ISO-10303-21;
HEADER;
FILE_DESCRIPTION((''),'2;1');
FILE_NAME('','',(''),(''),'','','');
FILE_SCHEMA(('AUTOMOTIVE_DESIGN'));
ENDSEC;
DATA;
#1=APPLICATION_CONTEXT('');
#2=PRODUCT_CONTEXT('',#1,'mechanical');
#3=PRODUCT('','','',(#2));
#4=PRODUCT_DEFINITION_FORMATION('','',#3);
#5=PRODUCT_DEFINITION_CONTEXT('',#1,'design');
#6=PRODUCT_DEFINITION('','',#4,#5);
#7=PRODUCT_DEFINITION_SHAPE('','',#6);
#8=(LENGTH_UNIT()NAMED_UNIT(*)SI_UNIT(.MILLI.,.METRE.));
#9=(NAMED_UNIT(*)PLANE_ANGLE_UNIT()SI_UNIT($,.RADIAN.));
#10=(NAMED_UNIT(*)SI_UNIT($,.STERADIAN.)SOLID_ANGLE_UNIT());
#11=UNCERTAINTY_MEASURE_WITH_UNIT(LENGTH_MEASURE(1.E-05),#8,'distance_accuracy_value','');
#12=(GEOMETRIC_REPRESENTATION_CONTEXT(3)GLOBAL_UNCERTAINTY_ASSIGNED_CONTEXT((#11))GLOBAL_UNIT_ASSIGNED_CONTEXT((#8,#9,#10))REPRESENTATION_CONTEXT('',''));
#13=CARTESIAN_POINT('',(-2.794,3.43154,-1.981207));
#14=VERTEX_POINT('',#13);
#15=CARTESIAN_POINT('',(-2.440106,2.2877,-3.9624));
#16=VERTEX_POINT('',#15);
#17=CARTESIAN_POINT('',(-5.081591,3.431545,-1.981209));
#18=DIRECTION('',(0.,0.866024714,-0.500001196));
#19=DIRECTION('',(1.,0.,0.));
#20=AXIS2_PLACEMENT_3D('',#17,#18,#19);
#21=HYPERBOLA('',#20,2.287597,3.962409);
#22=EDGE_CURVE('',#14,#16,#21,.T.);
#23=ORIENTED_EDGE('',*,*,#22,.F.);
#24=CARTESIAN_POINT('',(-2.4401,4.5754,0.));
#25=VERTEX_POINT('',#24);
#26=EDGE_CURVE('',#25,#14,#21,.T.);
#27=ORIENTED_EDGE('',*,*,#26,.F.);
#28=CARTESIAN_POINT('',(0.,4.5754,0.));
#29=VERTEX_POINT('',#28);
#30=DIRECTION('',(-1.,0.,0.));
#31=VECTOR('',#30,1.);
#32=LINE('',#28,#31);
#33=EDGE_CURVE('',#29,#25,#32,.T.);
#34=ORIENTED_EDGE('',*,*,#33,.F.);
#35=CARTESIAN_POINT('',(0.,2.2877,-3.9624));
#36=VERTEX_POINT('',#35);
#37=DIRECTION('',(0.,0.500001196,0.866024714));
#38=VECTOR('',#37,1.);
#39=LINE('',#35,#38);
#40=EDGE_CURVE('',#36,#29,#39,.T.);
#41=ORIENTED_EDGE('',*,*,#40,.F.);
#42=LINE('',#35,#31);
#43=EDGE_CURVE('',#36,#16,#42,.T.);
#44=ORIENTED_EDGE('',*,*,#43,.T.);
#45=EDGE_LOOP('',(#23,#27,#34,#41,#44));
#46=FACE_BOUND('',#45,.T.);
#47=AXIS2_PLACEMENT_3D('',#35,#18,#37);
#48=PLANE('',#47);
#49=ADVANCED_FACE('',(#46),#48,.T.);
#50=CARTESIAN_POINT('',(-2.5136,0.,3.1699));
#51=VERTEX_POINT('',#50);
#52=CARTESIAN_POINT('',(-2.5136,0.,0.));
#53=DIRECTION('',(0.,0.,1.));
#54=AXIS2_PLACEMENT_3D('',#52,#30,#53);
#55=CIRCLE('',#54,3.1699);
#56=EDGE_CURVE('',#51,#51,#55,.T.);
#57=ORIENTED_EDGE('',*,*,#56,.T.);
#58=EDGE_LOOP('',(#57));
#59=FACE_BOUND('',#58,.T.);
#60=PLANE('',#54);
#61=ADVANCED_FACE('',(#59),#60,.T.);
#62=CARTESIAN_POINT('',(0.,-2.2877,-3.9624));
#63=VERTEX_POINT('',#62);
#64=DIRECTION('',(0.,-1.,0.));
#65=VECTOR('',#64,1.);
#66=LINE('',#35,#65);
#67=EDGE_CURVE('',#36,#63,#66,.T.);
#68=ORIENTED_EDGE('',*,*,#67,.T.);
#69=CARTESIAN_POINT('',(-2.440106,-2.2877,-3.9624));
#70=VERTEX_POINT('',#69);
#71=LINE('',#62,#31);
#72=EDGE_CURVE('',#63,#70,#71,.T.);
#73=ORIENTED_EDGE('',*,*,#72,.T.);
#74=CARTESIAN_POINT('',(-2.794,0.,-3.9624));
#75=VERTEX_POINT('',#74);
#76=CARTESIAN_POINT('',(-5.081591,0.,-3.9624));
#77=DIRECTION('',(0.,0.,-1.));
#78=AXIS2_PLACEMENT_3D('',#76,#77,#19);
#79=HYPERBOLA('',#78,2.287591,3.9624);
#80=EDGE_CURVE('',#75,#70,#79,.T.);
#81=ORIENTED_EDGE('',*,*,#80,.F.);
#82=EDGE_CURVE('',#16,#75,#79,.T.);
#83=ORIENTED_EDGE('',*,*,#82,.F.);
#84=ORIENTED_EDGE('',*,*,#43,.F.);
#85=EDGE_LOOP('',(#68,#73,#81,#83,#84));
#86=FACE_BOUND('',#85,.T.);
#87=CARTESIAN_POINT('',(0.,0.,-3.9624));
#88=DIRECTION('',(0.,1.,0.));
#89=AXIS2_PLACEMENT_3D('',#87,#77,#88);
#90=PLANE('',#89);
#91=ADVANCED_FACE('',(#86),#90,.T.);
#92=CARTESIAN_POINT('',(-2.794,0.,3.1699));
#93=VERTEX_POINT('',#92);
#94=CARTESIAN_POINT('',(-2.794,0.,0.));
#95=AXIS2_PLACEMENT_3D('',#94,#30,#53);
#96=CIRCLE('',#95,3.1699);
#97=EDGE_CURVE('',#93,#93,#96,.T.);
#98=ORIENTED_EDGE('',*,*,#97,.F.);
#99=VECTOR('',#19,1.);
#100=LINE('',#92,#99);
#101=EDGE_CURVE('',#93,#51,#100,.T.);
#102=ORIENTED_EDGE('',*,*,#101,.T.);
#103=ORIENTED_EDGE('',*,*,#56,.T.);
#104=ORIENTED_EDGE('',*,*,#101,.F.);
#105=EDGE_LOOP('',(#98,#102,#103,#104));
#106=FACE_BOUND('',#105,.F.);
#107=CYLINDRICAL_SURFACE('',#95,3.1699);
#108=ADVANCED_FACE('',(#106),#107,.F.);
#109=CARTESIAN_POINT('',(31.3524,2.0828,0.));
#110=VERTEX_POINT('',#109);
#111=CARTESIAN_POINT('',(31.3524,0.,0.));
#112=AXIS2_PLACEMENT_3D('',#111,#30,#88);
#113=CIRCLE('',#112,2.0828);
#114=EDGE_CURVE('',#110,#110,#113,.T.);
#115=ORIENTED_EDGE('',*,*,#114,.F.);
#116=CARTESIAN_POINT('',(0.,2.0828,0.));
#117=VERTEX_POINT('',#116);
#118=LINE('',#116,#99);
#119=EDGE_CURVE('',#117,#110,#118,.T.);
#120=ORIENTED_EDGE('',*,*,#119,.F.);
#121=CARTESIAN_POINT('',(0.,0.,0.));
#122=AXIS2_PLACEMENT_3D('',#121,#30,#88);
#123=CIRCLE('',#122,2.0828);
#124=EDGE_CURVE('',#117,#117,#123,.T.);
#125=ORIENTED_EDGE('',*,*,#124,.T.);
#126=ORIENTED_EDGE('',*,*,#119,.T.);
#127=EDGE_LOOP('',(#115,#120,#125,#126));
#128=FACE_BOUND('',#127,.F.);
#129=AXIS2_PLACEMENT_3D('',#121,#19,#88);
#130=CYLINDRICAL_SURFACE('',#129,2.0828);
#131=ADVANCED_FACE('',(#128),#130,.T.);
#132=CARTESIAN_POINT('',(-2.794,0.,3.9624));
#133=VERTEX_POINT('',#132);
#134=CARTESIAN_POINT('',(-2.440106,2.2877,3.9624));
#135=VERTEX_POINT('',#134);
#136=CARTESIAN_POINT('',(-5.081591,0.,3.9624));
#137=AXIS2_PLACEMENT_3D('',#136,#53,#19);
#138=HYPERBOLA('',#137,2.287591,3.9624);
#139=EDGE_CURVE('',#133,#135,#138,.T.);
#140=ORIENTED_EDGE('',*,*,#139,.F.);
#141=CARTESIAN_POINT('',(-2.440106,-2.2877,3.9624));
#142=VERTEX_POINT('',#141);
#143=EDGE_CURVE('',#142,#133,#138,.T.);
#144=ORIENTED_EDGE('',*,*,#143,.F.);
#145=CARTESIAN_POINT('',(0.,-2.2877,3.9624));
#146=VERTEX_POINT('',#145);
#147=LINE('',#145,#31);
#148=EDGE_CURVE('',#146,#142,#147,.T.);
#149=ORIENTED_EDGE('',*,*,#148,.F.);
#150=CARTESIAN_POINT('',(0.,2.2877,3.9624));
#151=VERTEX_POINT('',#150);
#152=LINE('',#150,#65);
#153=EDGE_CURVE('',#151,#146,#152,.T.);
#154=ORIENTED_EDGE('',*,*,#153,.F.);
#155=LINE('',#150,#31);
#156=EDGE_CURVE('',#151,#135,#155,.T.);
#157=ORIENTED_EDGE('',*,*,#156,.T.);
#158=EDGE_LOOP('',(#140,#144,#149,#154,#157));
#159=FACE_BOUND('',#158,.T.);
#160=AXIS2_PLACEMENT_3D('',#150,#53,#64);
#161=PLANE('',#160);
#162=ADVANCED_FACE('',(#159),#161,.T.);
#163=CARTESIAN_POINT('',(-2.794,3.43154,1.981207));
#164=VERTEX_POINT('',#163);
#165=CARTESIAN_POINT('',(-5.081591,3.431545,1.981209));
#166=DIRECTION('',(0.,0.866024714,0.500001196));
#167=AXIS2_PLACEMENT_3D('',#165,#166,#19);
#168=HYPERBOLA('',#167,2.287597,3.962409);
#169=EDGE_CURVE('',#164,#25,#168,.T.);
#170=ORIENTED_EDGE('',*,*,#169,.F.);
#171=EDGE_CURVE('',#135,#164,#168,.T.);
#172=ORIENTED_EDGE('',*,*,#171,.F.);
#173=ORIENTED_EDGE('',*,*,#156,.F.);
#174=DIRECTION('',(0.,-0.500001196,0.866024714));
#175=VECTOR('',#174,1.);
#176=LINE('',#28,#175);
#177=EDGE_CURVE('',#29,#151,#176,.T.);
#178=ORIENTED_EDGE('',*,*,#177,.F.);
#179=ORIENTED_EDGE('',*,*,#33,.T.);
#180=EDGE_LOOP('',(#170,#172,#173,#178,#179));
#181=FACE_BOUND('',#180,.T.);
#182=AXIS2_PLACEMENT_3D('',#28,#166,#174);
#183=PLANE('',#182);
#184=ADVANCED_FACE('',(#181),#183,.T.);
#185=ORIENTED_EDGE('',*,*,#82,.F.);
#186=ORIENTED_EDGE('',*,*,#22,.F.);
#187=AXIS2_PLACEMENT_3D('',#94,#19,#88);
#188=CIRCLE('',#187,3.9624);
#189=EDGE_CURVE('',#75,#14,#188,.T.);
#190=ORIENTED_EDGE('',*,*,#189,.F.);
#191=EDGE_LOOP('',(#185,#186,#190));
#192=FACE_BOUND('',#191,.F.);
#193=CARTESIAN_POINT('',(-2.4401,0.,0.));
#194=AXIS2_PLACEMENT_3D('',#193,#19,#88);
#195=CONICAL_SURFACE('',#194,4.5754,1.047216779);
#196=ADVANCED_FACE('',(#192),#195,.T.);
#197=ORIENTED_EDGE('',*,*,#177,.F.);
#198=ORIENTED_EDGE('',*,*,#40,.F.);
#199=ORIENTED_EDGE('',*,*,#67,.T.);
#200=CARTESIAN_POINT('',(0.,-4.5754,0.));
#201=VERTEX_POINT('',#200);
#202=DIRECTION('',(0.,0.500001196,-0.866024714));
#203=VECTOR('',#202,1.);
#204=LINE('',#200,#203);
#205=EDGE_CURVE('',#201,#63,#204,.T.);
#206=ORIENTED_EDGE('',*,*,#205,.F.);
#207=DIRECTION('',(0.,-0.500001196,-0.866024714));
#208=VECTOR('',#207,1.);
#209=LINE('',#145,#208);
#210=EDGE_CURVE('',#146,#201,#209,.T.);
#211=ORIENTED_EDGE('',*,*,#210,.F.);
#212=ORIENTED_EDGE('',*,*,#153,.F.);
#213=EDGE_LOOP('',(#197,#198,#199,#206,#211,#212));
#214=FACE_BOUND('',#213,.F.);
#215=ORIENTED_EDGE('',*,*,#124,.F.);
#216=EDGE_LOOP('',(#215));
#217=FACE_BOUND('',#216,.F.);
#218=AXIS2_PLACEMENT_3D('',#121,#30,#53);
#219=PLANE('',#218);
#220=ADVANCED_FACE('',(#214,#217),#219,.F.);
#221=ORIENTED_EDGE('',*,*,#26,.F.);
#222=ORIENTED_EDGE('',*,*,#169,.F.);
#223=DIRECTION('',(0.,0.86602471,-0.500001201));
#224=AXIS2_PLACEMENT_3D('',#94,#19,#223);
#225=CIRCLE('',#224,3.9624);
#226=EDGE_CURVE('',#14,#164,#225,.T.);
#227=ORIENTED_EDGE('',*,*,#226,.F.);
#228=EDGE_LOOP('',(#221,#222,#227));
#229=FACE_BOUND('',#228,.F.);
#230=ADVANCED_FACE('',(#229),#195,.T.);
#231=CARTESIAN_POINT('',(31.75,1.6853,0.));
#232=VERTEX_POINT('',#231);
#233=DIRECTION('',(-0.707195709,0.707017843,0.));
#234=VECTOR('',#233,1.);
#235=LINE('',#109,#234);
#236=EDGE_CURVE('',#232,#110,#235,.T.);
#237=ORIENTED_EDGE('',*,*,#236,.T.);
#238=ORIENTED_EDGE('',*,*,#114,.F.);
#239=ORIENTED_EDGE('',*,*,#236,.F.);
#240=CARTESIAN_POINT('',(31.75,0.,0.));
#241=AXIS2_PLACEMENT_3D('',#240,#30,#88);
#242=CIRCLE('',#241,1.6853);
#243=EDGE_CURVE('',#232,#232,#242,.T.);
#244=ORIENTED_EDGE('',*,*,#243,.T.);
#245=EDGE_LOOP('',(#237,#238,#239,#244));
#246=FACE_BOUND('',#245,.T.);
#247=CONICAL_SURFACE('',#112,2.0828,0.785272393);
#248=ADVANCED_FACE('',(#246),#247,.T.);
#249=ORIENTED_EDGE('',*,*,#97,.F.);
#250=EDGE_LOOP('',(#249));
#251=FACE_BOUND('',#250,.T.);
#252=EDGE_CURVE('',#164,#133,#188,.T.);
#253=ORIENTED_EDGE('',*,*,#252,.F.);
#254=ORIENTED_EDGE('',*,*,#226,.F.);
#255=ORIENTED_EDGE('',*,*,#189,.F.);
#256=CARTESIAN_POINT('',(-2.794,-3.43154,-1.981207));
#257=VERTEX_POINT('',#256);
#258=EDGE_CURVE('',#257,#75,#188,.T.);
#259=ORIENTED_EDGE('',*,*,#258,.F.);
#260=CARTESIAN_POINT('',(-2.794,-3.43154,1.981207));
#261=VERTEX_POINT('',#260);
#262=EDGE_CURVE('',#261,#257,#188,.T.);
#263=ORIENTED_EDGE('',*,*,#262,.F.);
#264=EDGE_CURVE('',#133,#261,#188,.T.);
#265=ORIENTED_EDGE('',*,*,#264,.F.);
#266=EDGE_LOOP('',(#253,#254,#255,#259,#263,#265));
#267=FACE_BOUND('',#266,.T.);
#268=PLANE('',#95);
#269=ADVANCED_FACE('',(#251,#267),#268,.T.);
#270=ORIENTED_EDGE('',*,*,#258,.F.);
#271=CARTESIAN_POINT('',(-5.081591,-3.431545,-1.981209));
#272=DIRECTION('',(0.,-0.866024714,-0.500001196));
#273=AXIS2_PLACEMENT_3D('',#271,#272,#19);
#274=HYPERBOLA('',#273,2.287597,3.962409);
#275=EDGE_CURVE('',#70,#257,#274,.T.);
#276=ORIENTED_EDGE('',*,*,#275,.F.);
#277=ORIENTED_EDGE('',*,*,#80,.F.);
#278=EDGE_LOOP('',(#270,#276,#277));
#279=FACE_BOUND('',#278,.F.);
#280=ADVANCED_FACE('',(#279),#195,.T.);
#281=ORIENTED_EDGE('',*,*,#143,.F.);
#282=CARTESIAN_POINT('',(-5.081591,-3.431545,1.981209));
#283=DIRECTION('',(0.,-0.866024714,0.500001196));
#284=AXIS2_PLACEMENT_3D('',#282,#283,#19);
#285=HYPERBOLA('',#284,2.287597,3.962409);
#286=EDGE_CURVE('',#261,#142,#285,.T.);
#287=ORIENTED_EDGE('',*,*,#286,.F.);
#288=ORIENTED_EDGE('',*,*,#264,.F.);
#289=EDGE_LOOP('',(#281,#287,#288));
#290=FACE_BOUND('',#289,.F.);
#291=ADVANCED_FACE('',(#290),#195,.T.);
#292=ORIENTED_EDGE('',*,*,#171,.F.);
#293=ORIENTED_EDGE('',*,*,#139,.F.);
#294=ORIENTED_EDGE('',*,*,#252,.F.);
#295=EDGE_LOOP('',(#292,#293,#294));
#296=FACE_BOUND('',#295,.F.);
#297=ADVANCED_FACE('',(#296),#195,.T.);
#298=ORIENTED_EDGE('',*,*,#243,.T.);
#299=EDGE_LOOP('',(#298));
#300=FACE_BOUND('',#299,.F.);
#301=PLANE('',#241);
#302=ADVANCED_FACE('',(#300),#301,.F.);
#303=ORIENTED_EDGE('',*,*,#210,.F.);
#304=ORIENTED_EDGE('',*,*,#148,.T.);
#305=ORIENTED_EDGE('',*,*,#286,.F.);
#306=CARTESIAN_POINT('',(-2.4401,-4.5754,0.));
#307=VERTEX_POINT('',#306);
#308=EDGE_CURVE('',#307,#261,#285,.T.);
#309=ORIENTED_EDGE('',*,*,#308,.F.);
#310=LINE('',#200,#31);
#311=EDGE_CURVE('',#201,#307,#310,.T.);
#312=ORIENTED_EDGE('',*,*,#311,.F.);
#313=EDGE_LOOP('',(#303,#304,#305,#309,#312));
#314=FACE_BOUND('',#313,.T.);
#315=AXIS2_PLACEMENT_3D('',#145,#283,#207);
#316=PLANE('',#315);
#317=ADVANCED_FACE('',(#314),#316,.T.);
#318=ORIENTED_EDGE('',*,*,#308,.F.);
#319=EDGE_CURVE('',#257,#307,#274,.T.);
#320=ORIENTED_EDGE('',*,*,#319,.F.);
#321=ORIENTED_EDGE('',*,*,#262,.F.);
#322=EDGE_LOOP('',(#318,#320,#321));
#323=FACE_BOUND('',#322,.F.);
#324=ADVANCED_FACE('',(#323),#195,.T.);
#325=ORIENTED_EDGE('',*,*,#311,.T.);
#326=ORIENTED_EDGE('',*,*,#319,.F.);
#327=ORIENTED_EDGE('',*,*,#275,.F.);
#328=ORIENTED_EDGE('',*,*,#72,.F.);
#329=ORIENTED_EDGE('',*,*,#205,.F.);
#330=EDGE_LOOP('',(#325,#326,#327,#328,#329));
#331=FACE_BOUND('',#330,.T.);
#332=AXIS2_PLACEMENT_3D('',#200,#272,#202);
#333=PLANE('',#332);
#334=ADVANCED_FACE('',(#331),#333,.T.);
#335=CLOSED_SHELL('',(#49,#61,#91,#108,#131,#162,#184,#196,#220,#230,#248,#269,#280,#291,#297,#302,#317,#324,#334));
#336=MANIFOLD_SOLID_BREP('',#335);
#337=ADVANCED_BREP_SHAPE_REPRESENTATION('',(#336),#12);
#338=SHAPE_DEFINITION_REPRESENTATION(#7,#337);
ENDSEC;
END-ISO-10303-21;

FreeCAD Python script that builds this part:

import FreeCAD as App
import Part
import Sketcher

V = App.Vector
Q = App.Units.Quantity


def edges_at(feature, points):
    """Names of the edges that pass closest to the given points."""
    edges = feature.Shape.Edges
    near = lambda p: min(range(len(edges)), key=lambda i: edges[i].distToShape(Part.Vertex(*p))[0])
    return sorted({f"Edge{near(p) + 1}" for p in points})

doc = App.newDocument("Part")
body = doc.addObject("PartDesign::Body", "Body")

# Sketch on XY plane
sketch1 = body.newObject("Sketcher::SketchObject", "Sketch")
sketch1.AttachmentSupport = (doc.getObject("XY_Plane"), [""])
sketch1.MapMode = "FlatFace"
sketch1.addGeometry(Part.LineSegment(V(31.75, 2.0828, 0), V(0, 2.0828, 0)), False)
sketch1.addGeometry(Part.LineSegment(V(0, 2.0828, 0), V(0, 0, 0)), False)
sketch1.addGeometry(Part.LineSegment(V(0, 0, 0), V(31.75, 0, 0)), False)
sketch1.addGeometry(Part.LineSegment(V(31.75, 0, 0), V(31.75, 2.0828, 0)), False)
sketch1.addConstraint(Sketcher.Constraint("Coincident", 0, 2, 1, 1))
sketch1.addConstraint(Sketcher.Constraint("Coincident", 1, 2, 2, 1))
sketch1.addConstraint(Sketcher.Constraint("Coincident", 2, 2, 3, 1))
sketch1.addConstraint(Sketcher.Constraint("Coincident", 3, 2, 0, 1))
sketch1.addConstraint(Sketcher.Constraint("Horizontal", 0))
sketch1.addConstraint(Sketcher.Constraint("Vertical", 1))
sketch1.addConstraint(Sketcher.Constraint("Horizontal", 2))
sketch1.addConstraint(Sketcher.Constraint("Vertical", 3))
sketch1.addConstraint(Sketcher.Constraint("Coincident", 1, 2, -1, 1))
sketch1.addConstraint(Sketcher.Constraint("DistanceX", 0, 2, 0, 1, Q("1.25 in")))
sketch1.addConstraint(Sketcher.Constraint("DistanceY", 1, 2, 1, 1, Q("0.082 in")))
revolution = body.newObject("PartDesign::Revolution", "Revolution")
revolution.Profile = sketch1
revolution.ReferenceAxis = (sketch1, ["H_Axis"])
revolution.Angle = 360

# Sketch on YZ plane
sketch2 = body.newObject("Sketcher::SketchObject", "Sketch001")
sketch2.AttachmentSupport = (doc.getObject("YZ_Plane"), [""])
sketch2.MapMode = "FlatFace"
sketch2.addGeometry(Part.LineSegment(V(2.2877, -3.9624, 0), V(-2.2877, -3.9624, 0)), False)
sketch2.addGeometry(Part.LineSegment(V(-2.2877, -3.9624, 0), V(-4.5754, 0, 0)), False)
sketch2.addGeometry(Part.LineSegment(V(-4.5754, 0, 0), V(-2.2877, 3.9624, 0)), False)
sketch2.addGeometry(Part.LineSegment(V(-2.2877, 3.9624, 0), V(2.2877, 3.9624, 0)), False)
sketch2.addGeometry(Part.LineSegment(V(2.2877, 3.9624, 0), V(4.5754, 0, 0)), False)
sketch2.addGeometry(Part.LineSegment(V(4.5754, 0, 0), V(2.2877, -3.9624, 0)), False)
sketch2.addConstraint(Sketcher.Constraint("Coincident", 0, 2, 1, 1))
sketch2.addConstraint(Sketcher.Constraint("Coincident", 1, 2, 2, 1))
sketch2.addConstraint(Sketcher.Constraint("Coincident", 2, 2, 3, 1))
sketch2.addConstraint(Sketcher.Constraint("Coincident", 3, 2, 4, 1))
sketch2.addConstraint(Sketcher.Constraint("Coincident", 4, 2, 5, 1))
sketch2.addConstraint(Sketcher.Constraint("Coincident", 5, 2, 0, 1))
sketch2.addConstraint(Sketcher.Constraint("Horizontal", 0))
sketch2.addConstraint(Sketcher.Constraint("Horizontal", 3))
sketch2.addConstraint(Sketcher.Constraint("Symmetric", 0, 2, 3, 2, -1, 1))
sketch2.addConstraint(Sketcher.Constraint("Symmetric", 1, 2, 4, 2, -1, 1))
sketch2.addConstraint(Sketcher.Constraint("PointOnObject", 1, 2, -1))
sketch2.addConstraint(Sketcher.Constraint("Parallel", 2, 5))
sketch2.addConstraint(Sketcher.Constraint("Vertical", 0, 2, 2, 2))
sketch2.addConstraint(Sketcher.Constraint("Angle", 1, Q("120 deg")))
sketch2.addConstraint(Sketcher.Constraint("DistanceY", 0, 2, 2, 2, Q("0.312 in")))
sketch2.addConstraint(Sketcher.Constraint("DistanceX", 0, 2, 0, 1, Q("4.5754 mm")))
pad1 = body.newObject("PartDesign::Pad", "Pad")
pad1.Profile = sketch2
pad1.Length = Q("0.11 in")
pad1.Reversed = True

# Sketch on YZ plane
sketch3 = body.newObject("Sketcher::SketchObject", "Sketch002")
sketch3.AttachmentSupport = (doc.getObject("YZ_Plane"), [""])
sketch3.MapMode = "FlatFace"
sketch3.AttachmentOffset = App.Placement(V(0, 0, -0.11 * 25.4), App.Rotation())
sketch3.addGeometry(Part.Circle(V(0, 0, 0), V(0, 0, 1), 3.1699), False)
sketch3.addConstraint(Sketcher.Constraint("Coincident", 0, 3, -1, 1))
sketch3.addConstraint(Sketcher.Constraint("Diameter", 0, Q("0.2496 in")))
pocket1 = body.newObject("PartDesign::Pocket", "Pocket")
pocket1.Profile = sketch3
pocket1.Length = 0.2804
pocket1.Reversed = True

# Sketch on XY plane
sketch4 = body.newObject("Sketcher::SketchObject", "Sketch003")
sketch4.AttachmentSupport = (doc.getObject("XY_Plane"), [""])
sketch4.MapMode = "FlatFace"
sketch4.addGeometry(Part.LineSegment(V(-2.794, 4.5754, 0), V(-2.794, 3.9624, 0)), False)
sketch4.addGeometry(Part.LineSegment(V(-2.794, 3.9624, 0), V(-2.4401, 4.5754, 0)), False)
sketch4.addGeometry(Part.LineSegment(V(-2.4401, 4.5754, 0), V(-2.794, 4.5754, 0)), False)
sketch4.addConstraint(Sketcher.Constraint("Coincident", 0, 2, 1, 1))
sketch4.addConstraint(Sketcher.Constraint("Coincident", 1, 2, 2, 1))
sketch4.addConstraint(Sketcher.Constraint("Coincident", 2, 2, 0, 1))
sketch4.addConstraint(Sketcher.Constraint("Vertical", 0))
sketch4.addConstraint(Sketcher.Constraint("Horizontal", 2))
sketch4.addConstraint(Sketcher.Constraint("Angle", 1, Q("60.001 deg")))
sketch4.addConstraint(Sketcher.Constraint("DistanceX", 0, 2, -1, 1, Q("0.11 in")))
sketch4.addConstraint(Sketcher.Constraint("DistanceY", -1, 1, 0, 2, Q("0.156 in")))
sketch4.addConstraint(Sketcher.Constraint("DistanceX", 2, 2, 2, 1, Q("0.354 mm")))
groove = body.newObject("PartDesign::Groove", "Groove")
groove.Profile = sketch4
groove.ReferenceAxis = (sketch4, ["H_Axis"])
groove.Angle = 360
doc.recompute()

chamfer = body.newObject("PartDesign::Chamfer", "Chamfer")
chamfer.Base = (groove, edges_at(groove, [(31.75, -2.083, 0)]))
chamfer.ChamferType = "Two distances"
chamfer.Size = 0.3975
chamfer.Size2 = 0.3976

doc.recompute()
